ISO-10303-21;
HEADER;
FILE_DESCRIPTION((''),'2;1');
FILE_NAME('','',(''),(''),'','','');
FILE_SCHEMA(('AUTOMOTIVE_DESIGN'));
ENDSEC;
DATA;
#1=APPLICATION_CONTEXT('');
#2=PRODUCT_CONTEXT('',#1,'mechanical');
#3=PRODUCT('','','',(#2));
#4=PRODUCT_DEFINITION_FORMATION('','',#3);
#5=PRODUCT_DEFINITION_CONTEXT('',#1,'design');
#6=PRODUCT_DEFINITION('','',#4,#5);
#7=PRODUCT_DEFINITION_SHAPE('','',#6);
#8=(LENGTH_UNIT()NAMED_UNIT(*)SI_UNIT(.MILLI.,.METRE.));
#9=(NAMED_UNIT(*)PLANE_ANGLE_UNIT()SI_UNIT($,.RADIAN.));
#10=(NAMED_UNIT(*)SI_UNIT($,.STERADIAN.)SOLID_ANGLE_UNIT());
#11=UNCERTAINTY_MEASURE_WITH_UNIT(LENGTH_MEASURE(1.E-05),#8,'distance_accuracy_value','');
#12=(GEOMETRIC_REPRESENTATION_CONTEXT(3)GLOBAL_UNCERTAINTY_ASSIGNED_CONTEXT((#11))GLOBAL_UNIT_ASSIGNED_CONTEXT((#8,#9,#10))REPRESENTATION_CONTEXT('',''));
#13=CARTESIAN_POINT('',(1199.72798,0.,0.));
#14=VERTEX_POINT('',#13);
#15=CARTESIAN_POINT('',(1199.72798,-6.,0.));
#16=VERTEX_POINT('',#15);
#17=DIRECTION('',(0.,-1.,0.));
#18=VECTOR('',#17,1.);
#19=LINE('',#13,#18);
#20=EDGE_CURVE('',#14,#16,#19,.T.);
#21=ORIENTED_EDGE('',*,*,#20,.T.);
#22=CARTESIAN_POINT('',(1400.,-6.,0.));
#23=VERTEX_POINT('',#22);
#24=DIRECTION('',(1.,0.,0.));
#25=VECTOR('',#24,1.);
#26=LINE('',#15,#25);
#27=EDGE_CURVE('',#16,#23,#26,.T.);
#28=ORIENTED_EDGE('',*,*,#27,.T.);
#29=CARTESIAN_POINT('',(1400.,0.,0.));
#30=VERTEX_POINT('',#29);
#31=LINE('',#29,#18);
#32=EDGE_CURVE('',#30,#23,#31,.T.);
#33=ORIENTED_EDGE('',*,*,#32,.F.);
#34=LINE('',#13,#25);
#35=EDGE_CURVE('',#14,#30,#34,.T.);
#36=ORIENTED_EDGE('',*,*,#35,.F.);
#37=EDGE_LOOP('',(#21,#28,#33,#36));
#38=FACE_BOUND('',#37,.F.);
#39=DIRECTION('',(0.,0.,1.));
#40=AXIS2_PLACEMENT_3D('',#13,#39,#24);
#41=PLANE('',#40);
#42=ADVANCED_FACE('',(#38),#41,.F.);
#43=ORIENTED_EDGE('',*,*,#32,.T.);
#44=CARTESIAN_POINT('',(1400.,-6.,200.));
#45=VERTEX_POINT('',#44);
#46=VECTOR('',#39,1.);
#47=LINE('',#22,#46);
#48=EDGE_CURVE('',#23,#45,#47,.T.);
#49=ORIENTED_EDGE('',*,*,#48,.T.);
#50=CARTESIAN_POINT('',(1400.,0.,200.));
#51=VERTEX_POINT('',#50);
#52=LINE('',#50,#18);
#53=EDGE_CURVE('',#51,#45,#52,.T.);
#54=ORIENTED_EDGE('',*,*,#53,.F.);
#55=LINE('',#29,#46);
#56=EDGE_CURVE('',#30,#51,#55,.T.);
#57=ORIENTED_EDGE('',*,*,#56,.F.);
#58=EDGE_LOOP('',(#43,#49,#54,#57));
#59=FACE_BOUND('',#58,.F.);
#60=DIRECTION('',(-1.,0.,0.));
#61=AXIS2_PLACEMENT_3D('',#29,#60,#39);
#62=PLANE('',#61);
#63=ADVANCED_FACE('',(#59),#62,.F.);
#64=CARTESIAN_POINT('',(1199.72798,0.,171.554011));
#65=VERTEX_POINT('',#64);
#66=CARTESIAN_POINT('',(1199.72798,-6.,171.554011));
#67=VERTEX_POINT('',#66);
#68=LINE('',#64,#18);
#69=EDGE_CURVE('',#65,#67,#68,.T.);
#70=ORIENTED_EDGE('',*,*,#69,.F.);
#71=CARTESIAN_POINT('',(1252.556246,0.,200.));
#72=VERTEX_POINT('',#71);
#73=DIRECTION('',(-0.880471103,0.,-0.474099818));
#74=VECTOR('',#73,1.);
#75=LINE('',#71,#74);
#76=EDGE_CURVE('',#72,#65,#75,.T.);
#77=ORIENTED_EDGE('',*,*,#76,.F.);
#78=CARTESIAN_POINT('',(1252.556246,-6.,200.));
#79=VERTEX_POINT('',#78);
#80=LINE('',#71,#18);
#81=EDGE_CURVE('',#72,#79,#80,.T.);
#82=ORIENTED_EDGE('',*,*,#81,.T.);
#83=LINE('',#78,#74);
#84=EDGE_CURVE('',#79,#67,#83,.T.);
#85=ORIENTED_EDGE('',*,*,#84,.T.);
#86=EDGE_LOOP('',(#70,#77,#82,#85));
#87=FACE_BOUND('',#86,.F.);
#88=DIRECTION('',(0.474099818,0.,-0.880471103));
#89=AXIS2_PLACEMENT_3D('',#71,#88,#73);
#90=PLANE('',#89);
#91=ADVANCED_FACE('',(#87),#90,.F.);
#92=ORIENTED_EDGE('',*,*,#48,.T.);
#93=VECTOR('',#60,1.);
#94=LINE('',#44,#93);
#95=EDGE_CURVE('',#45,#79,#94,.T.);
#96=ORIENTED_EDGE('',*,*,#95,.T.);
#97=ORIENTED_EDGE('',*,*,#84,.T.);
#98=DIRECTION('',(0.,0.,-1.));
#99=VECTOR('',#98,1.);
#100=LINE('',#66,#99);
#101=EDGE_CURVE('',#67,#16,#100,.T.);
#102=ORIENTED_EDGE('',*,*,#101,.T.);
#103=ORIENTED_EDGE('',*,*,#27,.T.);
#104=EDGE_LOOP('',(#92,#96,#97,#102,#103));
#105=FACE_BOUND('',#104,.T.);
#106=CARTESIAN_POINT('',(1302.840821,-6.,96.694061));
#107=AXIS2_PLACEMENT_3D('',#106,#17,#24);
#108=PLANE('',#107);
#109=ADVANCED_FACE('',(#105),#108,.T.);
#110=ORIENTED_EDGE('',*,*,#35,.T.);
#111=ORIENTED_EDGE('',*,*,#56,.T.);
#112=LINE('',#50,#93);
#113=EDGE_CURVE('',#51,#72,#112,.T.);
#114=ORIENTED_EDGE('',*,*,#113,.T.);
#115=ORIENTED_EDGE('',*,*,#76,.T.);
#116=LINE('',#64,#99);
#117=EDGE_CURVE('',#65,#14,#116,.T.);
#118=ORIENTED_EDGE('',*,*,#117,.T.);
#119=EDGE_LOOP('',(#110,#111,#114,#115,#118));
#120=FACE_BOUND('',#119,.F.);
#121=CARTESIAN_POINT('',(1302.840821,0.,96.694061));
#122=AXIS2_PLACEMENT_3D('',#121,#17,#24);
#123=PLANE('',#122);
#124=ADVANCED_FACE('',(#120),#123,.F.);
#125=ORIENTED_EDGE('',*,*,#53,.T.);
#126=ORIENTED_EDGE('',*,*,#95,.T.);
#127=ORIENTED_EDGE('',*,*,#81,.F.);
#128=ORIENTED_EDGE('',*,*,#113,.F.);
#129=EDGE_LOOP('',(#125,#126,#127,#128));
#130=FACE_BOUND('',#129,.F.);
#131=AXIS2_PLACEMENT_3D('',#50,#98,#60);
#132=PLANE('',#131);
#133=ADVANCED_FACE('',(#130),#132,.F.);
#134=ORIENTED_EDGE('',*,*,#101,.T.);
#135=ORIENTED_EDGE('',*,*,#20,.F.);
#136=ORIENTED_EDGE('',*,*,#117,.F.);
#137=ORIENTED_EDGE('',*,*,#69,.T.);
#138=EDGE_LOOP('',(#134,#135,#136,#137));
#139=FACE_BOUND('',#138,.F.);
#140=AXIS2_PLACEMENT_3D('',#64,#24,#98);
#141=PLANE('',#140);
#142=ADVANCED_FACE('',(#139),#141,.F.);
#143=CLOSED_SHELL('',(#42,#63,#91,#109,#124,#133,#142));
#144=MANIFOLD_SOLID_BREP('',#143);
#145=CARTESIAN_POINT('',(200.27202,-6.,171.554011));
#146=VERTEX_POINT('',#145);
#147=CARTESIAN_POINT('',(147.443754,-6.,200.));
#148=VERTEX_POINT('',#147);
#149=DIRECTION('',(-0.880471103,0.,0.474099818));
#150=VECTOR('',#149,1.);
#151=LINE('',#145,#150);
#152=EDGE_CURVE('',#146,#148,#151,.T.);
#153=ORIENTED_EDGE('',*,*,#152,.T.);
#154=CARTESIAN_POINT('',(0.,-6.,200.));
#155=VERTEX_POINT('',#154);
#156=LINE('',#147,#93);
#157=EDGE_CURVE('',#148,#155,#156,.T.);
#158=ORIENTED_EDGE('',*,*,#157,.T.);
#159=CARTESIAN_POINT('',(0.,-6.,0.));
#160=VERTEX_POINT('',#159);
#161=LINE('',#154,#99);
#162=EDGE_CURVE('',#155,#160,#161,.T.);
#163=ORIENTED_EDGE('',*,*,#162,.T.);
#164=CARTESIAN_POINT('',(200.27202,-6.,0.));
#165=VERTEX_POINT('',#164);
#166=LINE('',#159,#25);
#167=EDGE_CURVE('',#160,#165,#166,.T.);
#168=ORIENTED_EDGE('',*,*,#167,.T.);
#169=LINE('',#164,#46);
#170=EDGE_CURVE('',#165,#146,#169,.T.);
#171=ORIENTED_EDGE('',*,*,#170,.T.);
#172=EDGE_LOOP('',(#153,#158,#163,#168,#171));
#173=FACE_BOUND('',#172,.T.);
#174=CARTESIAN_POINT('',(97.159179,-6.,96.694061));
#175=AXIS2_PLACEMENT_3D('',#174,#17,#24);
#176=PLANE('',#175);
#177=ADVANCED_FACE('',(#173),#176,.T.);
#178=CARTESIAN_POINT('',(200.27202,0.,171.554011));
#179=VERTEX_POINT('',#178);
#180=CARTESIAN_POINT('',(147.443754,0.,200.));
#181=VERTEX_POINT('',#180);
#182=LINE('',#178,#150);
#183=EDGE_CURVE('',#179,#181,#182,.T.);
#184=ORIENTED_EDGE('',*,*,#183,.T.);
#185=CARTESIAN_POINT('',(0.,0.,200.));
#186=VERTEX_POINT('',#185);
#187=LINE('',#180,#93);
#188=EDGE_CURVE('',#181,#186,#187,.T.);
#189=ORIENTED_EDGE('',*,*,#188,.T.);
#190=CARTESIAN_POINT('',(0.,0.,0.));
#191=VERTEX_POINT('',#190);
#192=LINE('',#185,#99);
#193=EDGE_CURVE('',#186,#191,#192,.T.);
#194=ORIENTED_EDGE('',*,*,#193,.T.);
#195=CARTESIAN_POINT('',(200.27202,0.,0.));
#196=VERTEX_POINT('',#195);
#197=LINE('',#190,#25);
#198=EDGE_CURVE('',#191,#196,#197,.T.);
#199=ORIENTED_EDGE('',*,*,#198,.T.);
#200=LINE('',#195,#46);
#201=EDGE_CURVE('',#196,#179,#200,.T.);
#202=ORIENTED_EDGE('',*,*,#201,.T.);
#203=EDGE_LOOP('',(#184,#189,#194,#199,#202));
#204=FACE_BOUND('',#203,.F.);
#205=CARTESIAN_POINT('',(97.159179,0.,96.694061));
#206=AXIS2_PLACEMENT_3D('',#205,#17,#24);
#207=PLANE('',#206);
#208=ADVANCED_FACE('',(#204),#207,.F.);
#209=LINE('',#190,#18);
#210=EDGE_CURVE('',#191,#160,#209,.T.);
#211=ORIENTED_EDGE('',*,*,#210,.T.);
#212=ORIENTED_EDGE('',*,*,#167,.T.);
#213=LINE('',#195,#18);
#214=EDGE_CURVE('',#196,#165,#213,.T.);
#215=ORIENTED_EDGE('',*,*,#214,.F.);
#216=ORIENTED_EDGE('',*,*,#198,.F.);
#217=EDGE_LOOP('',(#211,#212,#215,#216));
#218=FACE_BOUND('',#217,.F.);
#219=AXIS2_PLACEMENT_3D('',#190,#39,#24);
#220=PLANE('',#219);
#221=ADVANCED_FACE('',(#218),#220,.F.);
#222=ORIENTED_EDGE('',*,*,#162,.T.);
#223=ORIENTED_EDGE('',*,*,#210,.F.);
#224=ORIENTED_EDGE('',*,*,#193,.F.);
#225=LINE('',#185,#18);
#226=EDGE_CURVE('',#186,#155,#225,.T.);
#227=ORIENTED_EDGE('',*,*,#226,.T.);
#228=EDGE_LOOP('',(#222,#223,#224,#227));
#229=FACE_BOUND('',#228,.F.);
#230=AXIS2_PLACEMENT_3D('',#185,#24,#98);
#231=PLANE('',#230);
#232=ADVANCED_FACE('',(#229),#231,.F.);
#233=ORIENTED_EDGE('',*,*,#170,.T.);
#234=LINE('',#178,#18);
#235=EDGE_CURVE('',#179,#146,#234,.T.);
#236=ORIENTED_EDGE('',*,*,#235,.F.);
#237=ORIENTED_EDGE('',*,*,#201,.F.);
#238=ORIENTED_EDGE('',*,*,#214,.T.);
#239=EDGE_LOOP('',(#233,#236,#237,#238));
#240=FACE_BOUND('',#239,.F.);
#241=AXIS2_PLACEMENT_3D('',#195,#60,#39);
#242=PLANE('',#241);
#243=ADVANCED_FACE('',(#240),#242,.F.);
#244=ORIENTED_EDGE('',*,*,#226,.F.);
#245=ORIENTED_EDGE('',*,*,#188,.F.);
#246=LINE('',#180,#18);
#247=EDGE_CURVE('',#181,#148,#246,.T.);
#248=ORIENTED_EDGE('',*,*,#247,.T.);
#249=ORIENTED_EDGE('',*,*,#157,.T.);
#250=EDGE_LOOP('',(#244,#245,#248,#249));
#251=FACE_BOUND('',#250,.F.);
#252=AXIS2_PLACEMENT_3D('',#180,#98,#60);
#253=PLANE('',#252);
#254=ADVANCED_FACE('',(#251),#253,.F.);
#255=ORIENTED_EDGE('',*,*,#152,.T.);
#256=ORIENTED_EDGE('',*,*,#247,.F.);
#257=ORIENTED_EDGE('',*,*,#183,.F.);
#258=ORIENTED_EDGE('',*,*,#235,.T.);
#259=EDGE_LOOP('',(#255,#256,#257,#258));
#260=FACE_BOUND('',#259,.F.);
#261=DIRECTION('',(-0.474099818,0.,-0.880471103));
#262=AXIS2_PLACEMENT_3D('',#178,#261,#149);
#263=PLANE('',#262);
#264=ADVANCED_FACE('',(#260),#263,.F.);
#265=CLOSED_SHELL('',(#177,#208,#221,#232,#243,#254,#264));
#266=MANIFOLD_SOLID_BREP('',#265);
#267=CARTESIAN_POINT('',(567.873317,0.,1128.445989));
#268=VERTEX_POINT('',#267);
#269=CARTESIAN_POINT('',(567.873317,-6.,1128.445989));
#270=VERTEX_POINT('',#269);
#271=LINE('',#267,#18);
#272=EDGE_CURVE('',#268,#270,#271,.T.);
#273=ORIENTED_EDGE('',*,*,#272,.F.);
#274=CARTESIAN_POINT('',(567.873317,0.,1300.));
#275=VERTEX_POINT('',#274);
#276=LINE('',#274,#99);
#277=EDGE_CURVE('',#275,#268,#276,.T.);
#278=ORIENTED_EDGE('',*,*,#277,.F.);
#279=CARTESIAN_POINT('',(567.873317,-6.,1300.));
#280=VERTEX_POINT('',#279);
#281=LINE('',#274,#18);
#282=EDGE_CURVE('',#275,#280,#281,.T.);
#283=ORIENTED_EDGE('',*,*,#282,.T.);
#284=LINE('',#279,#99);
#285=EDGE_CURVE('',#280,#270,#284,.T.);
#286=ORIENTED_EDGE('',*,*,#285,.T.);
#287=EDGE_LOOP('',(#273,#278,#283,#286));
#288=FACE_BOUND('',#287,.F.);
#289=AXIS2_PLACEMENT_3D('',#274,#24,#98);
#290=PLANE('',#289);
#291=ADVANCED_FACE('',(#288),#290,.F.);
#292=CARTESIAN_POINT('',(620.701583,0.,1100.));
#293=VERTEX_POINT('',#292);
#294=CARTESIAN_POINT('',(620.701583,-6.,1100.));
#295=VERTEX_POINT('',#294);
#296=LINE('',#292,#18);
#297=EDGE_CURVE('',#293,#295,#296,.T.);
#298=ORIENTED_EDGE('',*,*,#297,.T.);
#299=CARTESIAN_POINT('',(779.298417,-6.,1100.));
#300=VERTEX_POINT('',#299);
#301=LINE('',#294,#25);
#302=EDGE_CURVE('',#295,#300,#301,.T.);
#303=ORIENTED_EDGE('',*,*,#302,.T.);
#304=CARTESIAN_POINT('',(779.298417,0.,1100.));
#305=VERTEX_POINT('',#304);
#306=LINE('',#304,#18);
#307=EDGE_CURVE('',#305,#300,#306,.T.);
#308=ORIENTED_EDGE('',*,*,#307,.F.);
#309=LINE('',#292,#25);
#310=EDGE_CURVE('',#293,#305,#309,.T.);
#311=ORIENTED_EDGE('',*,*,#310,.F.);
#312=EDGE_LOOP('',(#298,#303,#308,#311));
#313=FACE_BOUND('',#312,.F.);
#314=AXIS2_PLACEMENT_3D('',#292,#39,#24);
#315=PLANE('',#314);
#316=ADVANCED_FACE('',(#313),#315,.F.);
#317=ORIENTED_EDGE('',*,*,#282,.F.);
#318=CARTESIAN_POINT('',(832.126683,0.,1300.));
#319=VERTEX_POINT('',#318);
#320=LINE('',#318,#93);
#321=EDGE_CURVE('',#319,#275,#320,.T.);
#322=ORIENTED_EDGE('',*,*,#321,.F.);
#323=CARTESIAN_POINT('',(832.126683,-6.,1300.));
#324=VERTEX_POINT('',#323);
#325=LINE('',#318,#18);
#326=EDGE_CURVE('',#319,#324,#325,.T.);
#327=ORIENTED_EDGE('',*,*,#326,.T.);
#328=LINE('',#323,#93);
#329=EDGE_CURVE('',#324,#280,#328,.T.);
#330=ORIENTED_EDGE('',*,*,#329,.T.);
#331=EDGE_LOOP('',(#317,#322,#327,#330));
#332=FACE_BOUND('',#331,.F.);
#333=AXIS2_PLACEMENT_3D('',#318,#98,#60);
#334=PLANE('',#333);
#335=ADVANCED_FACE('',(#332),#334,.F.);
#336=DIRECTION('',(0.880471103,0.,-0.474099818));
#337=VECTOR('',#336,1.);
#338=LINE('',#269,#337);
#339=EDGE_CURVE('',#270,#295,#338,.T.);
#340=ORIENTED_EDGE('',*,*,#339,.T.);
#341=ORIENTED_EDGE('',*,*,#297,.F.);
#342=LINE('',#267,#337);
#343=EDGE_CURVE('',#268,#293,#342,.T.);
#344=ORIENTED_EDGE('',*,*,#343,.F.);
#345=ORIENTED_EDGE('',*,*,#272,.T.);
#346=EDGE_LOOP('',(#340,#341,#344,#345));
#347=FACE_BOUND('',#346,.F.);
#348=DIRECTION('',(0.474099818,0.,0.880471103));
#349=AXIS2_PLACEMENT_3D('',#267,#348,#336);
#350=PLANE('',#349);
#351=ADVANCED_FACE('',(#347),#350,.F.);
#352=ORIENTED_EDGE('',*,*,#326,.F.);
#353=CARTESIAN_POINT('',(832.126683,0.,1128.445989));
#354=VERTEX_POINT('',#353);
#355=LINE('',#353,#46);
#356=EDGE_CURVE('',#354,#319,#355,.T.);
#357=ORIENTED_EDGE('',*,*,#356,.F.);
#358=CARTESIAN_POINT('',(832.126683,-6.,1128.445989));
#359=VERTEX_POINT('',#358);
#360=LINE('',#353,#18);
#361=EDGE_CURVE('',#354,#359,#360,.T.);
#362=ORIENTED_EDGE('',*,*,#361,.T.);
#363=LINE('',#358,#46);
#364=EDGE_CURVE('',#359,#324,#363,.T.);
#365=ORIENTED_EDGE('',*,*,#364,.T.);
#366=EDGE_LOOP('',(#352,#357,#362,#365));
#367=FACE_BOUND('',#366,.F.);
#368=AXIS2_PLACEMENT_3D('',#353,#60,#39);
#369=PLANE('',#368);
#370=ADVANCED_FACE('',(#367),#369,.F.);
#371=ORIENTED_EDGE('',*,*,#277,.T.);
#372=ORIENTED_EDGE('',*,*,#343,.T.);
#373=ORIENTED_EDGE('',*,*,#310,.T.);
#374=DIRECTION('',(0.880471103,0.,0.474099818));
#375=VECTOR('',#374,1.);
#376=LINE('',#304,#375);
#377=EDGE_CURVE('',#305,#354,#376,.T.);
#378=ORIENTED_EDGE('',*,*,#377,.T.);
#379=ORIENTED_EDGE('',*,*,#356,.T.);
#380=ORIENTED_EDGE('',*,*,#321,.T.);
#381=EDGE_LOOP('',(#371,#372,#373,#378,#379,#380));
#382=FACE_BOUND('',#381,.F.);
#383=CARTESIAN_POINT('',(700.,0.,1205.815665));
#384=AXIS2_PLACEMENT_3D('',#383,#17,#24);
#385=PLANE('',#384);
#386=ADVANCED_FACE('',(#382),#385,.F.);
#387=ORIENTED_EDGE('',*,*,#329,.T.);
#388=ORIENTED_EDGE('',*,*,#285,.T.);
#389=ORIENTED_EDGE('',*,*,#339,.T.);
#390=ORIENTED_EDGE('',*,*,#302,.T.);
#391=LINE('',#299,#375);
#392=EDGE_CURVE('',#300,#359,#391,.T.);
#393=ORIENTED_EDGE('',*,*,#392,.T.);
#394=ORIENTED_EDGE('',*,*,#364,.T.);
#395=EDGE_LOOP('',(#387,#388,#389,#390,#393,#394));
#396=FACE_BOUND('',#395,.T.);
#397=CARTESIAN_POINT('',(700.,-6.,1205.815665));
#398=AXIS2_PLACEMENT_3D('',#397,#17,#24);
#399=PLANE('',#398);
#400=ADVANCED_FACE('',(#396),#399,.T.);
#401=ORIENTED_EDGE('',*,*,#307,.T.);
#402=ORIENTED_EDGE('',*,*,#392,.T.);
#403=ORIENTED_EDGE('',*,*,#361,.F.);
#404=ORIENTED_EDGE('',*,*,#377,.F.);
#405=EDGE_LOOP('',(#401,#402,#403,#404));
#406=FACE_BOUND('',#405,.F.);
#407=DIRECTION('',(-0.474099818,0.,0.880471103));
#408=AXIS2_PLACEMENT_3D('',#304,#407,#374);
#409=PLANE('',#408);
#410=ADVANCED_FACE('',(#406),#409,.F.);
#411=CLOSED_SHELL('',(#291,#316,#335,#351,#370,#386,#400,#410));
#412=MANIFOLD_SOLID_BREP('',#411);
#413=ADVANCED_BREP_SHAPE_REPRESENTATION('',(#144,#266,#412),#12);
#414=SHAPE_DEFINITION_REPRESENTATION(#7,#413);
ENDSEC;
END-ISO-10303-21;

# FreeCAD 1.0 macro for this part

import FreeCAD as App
import Part
import Sketcher
Q = App.Units.Quantity


def add_polygon(sketch, points):
    """Adds a closed chain of lines whose ends are joined by coincident constraints."""
    first, n = sketch.GeometryCount, len(points)
    for a, b in zip(points, points[1:] + points[:1]):
        sketch.addGeometry(Part.LineSegment(App.Vector(*a, 0), App.Vector(*b, 0)), False)
    for i in range(n):
        sketch.addConstraint(Sketcher.Constraint("Coincident", first + i, 2, first + (i + 1) % n, 1))

doc = App.newDocument("Part")
body = doc.addObject("PartDesign::Body", "Body")
body.AllowCompound = True

sketch1 = body.newObject("Sketcher::SketchObject", "Sketch")
sketch1.AttachmentSupport = (doc.getObject("XZ_Plane"), [""])
sketch1.MapMode = "FlatFace"
add_polygon(sketch1, [(0, 0), (200, 0), (200, 172), (147, 200), (0, 200)])
add_polygon(sketch1, [(621, 1100), (779, 1100), (832, 1128), (832, 1300), (568, 1300), (568, 1128)])
add_polygon(sketch1, [(1200, 0), (1400, 0), (1400, 200), (1253, 200), (1200, 172)])
sketch1.addConstraint(Sketcher.Constraint("Horizontal", 0))
sketch1.addConstraint(Sketcher.Constraint("Vertical", 1))
sketch1.addConstraint(Sketcher.Constraint("Horizontal", 3))
sketch1.addConstraint(Sketcher.Constraint("Vertical", 4))
sketch1.addConstraint(Sketcher.Constraint("Horizontal", 5))
sketch1.addConstraint(Sketcher.Constraint("Vertical", 7))
sketch1.addConstraint(Sketcher.Constraint("Horizontal", 8))
sketch1.addConstraint(Sketcher.Constraint("Vertical", 9))
sketch1.addConstraint(Sketcher.Constraint("Horizontal", 11))
sketch1.addConstraint(Sketcher.Constraint("Vertical", 12))
sketch1.addConstraint(Sketcher.Constraint("Horizontal", 13))
sketch1.addConstraint(Sketcher.Constraint("Vertical", 15))
sketch1.addConstraint(Sketcher.Constraint("Coincident", 4, 2, -1, 1))
sketch1.addConstraint(Sketcher.Constraint("PointOnObject", 11, 2, -1))
sketch1.addConstraint(Sketcher.Constraint("Parallel", 2, 10))
sketch1.addConstraint(Sketcher.Constraint("Parallel", 6, 14))
sketch1.addConstraint(Sketcher.Constraint("Horizontal", 6, 2, 9, 2))
sketch1.addConstraint(Sketcher.Constraint("Horizontal", 3, 2, 12, 2))
sketch1.addConstraint(Sketcher.Constraint("Horizontal", 1, 2, 14, 2))
sketch1.addConstraint(Sketcher.Constraint("Equal", 0, 11))
sketch1.addConstraint(Sketcher.Constraint("Equal", 3, 13))
sketch1.addConstraint(Sketcher.Constraint("Equal", 1, 7))
sketch1.addConstraint(Sketcher.Constraint("Equal", 2, 6))
sketch1.addConstraint(Sketcher.Constraint("DistanceY", 4, 2, 4, 1, Q("200 mm")))
sketch1.addConstraint(Sketcher.Constraint("Distance", 2, Q("60 mm")))
sketch1.addConstraint(Sketcher.Constraint("DistanceY", -1, 1, 5, 2, Q("1100 mm")))
sketch1.addConstraint(Sketcher.Constraint("DistanceX", -1, 1, 11, 2, Q("1400 mm")))
sketch1.addConstraint(Sketcher.Constraint("DistanceX", 0, 1, 0, 2, Q("200.27202 mm")))
sketch1.addConstraint(Sketcher.Constraint("DistanceY", 1, 1, 1, 2, Q("171.554011 mm")))
sketch1.addConstraint(Sketcher.Constraint("DistanceX", 8, 2, 5, 2, Q("211.4251 mm")))
sketch1.addConstraint(Sketcher.Constraint("DistanceX", 2, 2, 6, 2, Q("684.682929 mm")))
pad1 = body.newObject("PartDesign::Pad", "Pad")
pad1.Profile = sketch1
pad1.Length = 6

doc.recompute()
